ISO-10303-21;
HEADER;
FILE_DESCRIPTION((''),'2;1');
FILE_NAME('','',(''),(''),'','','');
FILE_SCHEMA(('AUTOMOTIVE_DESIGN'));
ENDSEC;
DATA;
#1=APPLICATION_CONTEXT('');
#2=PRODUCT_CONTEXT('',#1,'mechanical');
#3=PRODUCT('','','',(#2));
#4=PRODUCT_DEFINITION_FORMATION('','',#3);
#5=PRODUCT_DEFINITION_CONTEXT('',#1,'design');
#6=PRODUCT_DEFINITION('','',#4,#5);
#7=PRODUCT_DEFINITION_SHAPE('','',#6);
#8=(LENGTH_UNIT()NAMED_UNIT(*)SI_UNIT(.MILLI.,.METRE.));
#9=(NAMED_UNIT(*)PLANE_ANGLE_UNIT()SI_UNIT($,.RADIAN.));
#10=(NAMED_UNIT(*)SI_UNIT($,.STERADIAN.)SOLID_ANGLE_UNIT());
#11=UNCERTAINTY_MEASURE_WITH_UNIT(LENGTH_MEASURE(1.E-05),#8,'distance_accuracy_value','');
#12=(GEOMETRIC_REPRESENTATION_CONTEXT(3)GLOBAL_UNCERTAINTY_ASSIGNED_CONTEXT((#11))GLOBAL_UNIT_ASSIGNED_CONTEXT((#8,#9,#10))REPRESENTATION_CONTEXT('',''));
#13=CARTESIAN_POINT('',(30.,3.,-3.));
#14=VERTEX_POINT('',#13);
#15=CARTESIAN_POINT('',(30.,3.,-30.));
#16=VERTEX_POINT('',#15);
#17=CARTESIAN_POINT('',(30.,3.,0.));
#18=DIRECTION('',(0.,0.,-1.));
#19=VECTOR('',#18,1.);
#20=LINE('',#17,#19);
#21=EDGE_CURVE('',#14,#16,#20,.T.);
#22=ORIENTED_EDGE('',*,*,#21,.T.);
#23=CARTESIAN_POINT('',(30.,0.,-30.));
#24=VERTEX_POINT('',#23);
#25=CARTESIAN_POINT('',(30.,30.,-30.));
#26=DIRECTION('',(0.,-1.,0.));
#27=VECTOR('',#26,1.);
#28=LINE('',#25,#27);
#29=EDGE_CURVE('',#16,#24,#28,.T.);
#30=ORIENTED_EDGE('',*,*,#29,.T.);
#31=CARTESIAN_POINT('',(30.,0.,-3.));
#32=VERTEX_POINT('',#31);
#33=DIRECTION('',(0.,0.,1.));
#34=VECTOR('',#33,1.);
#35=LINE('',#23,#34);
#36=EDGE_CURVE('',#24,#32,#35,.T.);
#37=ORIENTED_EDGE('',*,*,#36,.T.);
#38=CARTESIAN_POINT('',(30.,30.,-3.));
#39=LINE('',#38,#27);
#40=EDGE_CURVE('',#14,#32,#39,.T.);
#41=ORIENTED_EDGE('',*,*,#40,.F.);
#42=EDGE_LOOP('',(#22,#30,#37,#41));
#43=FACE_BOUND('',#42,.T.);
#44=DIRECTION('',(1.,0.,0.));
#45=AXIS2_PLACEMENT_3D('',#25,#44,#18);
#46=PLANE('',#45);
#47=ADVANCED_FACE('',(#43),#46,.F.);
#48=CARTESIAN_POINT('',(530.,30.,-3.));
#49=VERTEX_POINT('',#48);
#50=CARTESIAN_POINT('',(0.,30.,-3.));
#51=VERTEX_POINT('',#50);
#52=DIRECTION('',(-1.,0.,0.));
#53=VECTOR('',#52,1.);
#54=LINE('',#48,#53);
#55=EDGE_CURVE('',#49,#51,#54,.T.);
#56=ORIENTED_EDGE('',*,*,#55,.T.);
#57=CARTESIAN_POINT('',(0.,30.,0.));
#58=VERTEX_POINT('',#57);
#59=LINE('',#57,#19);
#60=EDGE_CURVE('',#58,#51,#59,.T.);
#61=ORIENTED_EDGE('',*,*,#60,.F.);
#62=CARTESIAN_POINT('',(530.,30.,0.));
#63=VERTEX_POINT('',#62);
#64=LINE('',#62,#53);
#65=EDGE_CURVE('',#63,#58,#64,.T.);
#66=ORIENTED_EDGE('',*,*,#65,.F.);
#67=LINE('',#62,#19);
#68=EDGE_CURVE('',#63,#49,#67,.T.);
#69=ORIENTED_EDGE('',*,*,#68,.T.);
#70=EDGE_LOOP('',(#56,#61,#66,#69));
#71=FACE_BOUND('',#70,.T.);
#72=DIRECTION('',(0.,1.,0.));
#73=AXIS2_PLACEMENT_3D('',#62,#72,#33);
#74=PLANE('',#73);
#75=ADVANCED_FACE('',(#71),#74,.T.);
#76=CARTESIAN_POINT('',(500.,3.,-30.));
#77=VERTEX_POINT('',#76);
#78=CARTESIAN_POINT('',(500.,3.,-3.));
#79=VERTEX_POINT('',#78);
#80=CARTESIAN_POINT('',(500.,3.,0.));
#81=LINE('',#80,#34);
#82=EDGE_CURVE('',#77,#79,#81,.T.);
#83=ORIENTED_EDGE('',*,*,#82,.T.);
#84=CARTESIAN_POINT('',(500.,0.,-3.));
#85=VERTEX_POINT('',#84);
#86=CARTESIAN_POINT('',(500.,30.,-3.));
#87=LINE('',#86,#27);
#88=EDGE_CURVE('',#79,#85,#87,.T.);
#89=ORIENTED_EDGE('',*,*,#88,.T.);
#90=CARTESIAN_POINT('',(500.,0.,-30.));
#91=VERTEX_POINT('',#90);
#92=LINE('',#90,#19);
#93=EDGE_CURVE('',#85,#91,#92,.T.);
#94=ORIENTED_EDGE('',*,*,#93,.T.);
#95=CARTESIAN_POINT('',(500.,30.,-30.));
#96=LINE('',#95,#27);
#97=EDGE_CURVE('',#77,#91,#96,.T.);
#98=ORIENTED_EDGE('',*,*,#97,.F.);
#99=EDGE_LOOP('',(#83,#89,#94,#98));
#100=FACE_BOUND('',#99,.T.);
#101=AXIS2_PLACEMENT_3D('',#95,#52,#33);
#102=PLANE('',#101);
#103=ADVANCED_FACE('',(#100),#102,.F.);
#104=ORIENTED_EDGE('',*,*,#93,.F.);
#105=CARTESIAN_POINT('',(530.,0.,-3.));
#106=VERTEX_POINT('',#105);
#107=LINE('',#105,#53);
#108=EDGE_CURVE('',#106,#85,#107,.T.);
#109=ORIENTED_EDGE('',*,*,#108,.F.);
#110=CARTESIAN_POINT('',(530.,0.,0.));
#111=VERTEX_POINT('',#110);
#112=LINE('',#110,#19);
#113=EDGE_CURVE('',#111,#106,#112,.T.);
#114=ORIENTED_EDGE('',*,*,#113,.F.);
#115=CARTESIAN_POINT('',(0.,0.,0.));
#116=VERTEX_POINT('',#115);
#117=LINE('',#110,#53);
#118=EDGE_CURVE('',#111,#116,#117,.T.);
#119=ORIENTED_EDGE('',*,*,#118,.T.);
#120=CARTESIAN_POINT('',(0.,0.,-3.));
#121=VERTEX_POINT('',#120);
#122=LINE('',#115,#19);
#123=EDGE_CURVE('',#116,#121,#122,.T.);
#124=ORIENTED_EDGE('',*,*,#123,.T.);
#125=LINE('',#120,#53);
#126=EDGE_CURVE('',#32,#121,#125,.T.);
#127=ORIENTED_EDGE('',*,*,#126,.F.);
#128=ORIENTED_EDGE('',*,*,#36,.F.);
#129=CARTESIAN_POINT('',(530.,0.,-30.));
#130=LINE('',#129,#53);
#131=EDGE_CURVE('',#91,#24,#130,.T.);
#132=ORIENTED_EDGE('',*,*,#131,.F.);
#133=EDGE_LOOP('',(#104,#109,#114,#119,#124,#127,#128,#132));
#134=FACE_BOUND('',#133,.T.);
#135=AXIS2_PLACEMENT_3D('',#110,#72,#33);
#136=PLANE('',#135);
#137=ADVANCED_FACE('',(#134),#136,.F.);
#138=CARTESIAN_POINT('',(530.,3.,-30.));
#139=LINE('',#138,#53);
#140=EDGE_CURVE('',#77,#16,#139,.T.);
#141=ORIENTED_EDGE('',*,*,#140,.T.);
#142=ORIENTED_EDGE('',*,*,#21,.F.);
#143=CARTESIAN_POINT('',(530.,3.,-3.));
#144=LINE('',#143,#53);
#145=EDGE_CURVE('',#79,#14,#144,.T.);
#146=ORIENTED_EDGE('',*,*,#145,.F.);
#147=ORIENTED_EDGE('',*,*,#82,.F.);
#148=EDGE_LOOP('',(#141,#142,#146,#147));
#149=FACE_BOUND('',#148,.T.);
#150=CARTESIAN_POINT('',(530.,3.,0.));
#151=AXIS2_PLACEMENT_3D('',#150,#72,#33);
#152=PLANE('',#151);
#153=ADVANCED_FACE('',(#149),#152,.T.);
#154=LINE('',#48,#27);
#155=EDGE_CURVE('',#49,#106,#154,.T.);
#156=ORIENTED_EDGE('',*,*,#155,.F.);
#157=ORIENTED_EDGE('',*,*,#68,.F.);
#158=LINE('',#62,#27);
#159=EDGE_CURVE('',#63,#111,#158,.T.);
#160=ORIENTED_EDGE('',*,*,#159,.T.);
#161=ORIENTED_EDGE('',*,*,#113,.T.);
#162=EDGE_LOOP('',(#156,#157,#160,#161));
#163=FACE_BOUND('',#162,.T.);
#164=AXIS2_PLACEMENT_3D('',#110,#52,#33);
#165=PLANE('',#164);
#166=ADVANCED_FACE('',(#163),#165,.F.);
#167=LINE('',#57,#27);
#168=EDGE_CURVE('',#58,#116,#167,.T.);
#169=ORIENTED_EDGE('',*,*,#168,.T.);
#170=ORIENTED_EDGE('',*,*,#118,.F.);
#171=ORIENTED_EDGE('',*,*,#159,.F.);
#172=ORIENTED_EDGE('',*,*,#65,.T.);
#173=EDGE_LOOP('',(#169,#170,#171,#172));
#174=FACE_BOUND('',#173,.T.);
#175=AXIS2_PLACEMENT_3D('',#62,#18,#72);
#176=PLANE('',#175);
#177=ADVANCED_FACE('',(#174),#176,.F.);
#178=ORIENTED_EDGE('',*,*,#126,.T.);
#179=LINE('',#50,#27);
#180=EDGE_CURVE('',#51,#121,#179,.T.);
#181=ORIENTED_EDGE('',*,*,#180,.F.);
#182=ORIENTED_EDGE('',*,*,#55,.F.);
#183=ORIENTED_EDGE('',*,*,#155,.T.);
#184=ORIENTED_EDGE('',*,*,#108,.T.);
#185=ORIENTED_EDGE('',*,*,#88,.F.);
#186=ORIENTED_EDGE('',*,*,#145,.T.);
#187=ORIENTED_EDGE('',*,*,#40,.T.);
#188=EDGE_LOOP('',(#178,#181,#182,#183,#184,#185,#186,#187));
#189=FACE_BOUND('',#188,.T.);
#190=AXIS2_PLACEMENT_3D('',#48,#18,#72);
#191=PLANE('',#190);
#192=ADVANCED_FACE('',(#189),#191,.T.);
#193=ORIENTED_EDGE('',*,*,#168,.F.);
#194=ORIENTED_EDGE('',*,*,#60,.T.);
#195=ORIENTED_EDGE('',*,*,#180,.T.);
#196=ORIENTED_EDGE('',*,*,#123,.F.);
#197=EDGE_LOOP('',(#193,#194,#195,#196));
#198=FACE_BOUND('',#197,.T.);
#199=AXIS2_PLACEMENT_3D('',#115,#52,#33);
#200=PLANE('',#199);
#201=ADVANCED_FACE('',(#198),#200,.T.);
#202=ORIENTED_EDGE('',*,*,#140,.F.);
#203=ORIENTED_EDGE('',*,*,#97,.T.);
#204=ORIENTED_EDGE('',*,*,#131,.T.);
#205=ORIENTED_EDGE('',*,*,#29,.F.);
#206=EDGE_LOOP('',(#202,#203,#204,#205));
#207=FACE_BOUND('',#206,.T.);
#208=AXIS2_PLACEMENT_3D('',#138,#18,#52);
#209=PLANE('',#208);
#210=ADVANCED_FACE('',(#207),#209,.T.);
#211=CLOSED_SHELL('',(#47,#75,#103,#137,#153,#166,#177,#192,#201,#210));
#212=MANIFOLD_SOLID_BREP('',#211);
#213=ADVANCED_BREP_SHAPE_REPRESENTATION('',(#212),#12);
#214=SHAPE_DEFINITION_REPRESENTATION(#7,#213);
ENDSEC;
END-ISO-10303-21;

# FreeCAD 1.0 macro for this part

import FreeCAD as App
import Part
import Sketcher

doc = App.newDocument("Part")
body = doc.addObject("PartDesign::Body", "Body")

sketch1 = doc.addObject("Sketcher::SketchObject", "Sketch")
body.addObject(sketch1)
sketch1.AttachmentSupport = (doc.YZ_Plane, [""])
sketch1.MapMode = "FlatFace"
sketch1.addGeometry(Part.LineSegment(App.Vector(30, 0, 0), App.Vector(0, 0, 0)), False)
sketch1.addGeometry(Part.LineSegment(App.Vector(0, 0, 0), App.Vector(0, -30, 0)), False)
sketch1.addGeometry(Part.LineSegment(App.Vector(0, -30, 0), App.Vector(3, -30, 0)), False)
sketch1.addGeometry(Part.LineSegment(App.Vector(3, -30, 0), App.Vector(3, -3, 0)), False)
sketch1.addGeometry(Part.LineSegment(App.Vector(3, -3, 0), App.Vector(30, -3, 0)), False)
sketch1.addGeometry(Part.LineSegment(App.Vector(30, -3, 0), App.Vector(30, 0, 0)), False)
sketch1.addConstraint(Sketcher.Constraint("Coincident", 0, 2, 1, 1))
sketch1.addConstraint(Sketcher.Constraint("Coincident", 1, 2, 2, 1))
sketch1.addConstraint(Sketcher.Constraint("Coincident", 2, 2, 3, 1))
sketch1.addConstraint(Sketcher.Constraint("Coincident", 3, 2, 4, 1))
sketch1.addConstraint(Sketcher.Constraint("Coincident", 4, 2, 5, 1))
sketch1.addConstraint(Sketcher.Constraint("Coincident", 5, 2, 0, 1))
sketch1.addConstraint(Sketcher.Constraint("Horizontal", 0))
sketch1.addConstraint(Sketcher.Constraint("Vertical", 1))
sketch1.addConstraint(Sketcher.Constraint("Horizontal", 2))
sketch1.addConstraint(Sketcher.Constraint("Vertical", 3))
sketch1.addConstraint(Sketcher.Constraint("Horizontal", 4))
sketch1.addConstraint(Sketcher.Constraint("Vertical", 5))
sketch1.addConstraint(Sketcher.Constraint("Coincident", 0, 2, -1, 1))
sketch1.addConstraint(Sketcher.Constraint("Equal", 0, 1))
sketch1.addConstraint(Sketcher.Constraint("Equal", 4, 3))
sketch1.addConstraint(Sketcher.Constraint("DistanceX", 0, 2, 0, 1, 30.0))
sketch1.addConstraint(Sketcher.Constraint("DistanceX", 2, 1, 2, 2, 3.0))
pad1 = doc.addObject("PartDesign::Pad", "Pad")
body.addObject(pad1)
pad1.Profile = sketch1
pad1.Length = 530

sketch2 = doc.addObject("Sketcher::SketchObject", "Sketch001")
body.addObject(sketch2)
sketch2.AttachmentSupport = (doc.XZ_Plane, [""])
sketch2.MapMode = "FlatFace"
sketch2.addGeometry(Part.LineSegment(App.Vector(500, -3, 0), App.Vector(500, -30, 0)), False)
sketch2.addGeometry(Part.LineSegment(App.Vector(500, -30, 0), App.Vector(530, -30, 0)), False)
sketch2.addGeometry(Part.LineSegment(App.Vector(530, -30, 0), App.Vector(530, -3, 0)), False)
sketch2.addGeometry(Part.LineSegment(App.Vector(530, -3, 0), App.Vector(500, -3, 0)), False)
sketch2.addGeometry(Part.LineSegment(App.Vector(0, -3, 0), App.Vector(0, -30, 0)), False)
sketch2.addGeometry(Part.LineSegment(App.Vector(0, -30, 0), App.Vector(30, -30, 0)), False)
sketch2.addGeometry(Part.LineSegment(App.Vector(30, -30, 0), App.Vector(30, -3, 0)), False)
sketch2.addGeometry(Part.LineSegment(App.Vector(30, -3, 0), App.Vector(0, -3, 0)), False)
sketch2.addConstraint(Sketcher.Constraint("Coincident", 0, 2, 1, 1))
sketch2.addConstraint(Sketcher.Constraint("Coincident", 1, 2, 2, 1))
sketch2.addConstraint(Sketcher.Constraint("Coincident", 2, 2, 3, 1))
sketch2.addConstraint(Sketcher.Constraint("Coincident", 3, 2, 0, 1))
sketch2.addConstraint(Sketcher.Constraint("Coincident", 4, 2, 5, 1))
sketch2.addConstraint(Sketcher.Constraint("Coincident", 5, 2, 6, 1))
sketch2.addConstraint(Sketcher.Constraint("Coincident", 6, 2, 7, 1))
sketch2.addConstraint(Sketcher.Constraint("Coincident", 7, 2, 4, 1))
sketch2.addConstraint(Sketcher.Constraint("Vertical", 0))
sketch2.addConstraint(Sketcher.Constraint("Horizontal", 1))
sketch2.addConstraint(Sketcher.Constraint("Vertical", 2))
sketch2.addConstraint(Sketcher.Constraint("Horizontal", 3))
sketch2.addConstraint(Sketcher.Constraint("Vertical", 4))
sketch2.addConstraint(Sketcher.Constraint("Horizontal", 5))
sketch2.addConstraint(Sketcher.Constraint("Vertical", 6))
sketch2.addConstraint(Sketcher.Constraint("Horizontal", 7))
sketch2.addConstraint(Sketcher.Constraint("PointOnObject", 4, 2, -2))
sketch2.addConstraint(Sketcher.Constraint("Horizontal", 1, 2, 4, 2))
sketch2.addConstraint(Sketcher.Constraint("Horizontal", 3, 2, 6, 2))
sketch2.addConstraint(Sketcher.Constraint("Equal", 3, 5))
sketch2.addConstraint(Sketcher.Constraint("DistanceX", 1, 1, 1, 2, 30.0))
sketch2.addConstraint(Sketcher.Constraint("DistanceY", 0, 2, 0, 1, 27.0))
sketch2.addConstraint(Sketcher.Constraint("DistanceX", -1, 1, 0, 2, 500.0))
sketch2.addConstraint(Sketcher.Constraint("DistanceY", 0, 2, -1, 1, 30.0))
pocket1 = doc.addObject("PartDesign::Pocket", "Pocket")
body.addObject(pocket1)
pocket1.Profile = sketch2
pocket1.Type = "ThroughAll"

doc.recompute()
